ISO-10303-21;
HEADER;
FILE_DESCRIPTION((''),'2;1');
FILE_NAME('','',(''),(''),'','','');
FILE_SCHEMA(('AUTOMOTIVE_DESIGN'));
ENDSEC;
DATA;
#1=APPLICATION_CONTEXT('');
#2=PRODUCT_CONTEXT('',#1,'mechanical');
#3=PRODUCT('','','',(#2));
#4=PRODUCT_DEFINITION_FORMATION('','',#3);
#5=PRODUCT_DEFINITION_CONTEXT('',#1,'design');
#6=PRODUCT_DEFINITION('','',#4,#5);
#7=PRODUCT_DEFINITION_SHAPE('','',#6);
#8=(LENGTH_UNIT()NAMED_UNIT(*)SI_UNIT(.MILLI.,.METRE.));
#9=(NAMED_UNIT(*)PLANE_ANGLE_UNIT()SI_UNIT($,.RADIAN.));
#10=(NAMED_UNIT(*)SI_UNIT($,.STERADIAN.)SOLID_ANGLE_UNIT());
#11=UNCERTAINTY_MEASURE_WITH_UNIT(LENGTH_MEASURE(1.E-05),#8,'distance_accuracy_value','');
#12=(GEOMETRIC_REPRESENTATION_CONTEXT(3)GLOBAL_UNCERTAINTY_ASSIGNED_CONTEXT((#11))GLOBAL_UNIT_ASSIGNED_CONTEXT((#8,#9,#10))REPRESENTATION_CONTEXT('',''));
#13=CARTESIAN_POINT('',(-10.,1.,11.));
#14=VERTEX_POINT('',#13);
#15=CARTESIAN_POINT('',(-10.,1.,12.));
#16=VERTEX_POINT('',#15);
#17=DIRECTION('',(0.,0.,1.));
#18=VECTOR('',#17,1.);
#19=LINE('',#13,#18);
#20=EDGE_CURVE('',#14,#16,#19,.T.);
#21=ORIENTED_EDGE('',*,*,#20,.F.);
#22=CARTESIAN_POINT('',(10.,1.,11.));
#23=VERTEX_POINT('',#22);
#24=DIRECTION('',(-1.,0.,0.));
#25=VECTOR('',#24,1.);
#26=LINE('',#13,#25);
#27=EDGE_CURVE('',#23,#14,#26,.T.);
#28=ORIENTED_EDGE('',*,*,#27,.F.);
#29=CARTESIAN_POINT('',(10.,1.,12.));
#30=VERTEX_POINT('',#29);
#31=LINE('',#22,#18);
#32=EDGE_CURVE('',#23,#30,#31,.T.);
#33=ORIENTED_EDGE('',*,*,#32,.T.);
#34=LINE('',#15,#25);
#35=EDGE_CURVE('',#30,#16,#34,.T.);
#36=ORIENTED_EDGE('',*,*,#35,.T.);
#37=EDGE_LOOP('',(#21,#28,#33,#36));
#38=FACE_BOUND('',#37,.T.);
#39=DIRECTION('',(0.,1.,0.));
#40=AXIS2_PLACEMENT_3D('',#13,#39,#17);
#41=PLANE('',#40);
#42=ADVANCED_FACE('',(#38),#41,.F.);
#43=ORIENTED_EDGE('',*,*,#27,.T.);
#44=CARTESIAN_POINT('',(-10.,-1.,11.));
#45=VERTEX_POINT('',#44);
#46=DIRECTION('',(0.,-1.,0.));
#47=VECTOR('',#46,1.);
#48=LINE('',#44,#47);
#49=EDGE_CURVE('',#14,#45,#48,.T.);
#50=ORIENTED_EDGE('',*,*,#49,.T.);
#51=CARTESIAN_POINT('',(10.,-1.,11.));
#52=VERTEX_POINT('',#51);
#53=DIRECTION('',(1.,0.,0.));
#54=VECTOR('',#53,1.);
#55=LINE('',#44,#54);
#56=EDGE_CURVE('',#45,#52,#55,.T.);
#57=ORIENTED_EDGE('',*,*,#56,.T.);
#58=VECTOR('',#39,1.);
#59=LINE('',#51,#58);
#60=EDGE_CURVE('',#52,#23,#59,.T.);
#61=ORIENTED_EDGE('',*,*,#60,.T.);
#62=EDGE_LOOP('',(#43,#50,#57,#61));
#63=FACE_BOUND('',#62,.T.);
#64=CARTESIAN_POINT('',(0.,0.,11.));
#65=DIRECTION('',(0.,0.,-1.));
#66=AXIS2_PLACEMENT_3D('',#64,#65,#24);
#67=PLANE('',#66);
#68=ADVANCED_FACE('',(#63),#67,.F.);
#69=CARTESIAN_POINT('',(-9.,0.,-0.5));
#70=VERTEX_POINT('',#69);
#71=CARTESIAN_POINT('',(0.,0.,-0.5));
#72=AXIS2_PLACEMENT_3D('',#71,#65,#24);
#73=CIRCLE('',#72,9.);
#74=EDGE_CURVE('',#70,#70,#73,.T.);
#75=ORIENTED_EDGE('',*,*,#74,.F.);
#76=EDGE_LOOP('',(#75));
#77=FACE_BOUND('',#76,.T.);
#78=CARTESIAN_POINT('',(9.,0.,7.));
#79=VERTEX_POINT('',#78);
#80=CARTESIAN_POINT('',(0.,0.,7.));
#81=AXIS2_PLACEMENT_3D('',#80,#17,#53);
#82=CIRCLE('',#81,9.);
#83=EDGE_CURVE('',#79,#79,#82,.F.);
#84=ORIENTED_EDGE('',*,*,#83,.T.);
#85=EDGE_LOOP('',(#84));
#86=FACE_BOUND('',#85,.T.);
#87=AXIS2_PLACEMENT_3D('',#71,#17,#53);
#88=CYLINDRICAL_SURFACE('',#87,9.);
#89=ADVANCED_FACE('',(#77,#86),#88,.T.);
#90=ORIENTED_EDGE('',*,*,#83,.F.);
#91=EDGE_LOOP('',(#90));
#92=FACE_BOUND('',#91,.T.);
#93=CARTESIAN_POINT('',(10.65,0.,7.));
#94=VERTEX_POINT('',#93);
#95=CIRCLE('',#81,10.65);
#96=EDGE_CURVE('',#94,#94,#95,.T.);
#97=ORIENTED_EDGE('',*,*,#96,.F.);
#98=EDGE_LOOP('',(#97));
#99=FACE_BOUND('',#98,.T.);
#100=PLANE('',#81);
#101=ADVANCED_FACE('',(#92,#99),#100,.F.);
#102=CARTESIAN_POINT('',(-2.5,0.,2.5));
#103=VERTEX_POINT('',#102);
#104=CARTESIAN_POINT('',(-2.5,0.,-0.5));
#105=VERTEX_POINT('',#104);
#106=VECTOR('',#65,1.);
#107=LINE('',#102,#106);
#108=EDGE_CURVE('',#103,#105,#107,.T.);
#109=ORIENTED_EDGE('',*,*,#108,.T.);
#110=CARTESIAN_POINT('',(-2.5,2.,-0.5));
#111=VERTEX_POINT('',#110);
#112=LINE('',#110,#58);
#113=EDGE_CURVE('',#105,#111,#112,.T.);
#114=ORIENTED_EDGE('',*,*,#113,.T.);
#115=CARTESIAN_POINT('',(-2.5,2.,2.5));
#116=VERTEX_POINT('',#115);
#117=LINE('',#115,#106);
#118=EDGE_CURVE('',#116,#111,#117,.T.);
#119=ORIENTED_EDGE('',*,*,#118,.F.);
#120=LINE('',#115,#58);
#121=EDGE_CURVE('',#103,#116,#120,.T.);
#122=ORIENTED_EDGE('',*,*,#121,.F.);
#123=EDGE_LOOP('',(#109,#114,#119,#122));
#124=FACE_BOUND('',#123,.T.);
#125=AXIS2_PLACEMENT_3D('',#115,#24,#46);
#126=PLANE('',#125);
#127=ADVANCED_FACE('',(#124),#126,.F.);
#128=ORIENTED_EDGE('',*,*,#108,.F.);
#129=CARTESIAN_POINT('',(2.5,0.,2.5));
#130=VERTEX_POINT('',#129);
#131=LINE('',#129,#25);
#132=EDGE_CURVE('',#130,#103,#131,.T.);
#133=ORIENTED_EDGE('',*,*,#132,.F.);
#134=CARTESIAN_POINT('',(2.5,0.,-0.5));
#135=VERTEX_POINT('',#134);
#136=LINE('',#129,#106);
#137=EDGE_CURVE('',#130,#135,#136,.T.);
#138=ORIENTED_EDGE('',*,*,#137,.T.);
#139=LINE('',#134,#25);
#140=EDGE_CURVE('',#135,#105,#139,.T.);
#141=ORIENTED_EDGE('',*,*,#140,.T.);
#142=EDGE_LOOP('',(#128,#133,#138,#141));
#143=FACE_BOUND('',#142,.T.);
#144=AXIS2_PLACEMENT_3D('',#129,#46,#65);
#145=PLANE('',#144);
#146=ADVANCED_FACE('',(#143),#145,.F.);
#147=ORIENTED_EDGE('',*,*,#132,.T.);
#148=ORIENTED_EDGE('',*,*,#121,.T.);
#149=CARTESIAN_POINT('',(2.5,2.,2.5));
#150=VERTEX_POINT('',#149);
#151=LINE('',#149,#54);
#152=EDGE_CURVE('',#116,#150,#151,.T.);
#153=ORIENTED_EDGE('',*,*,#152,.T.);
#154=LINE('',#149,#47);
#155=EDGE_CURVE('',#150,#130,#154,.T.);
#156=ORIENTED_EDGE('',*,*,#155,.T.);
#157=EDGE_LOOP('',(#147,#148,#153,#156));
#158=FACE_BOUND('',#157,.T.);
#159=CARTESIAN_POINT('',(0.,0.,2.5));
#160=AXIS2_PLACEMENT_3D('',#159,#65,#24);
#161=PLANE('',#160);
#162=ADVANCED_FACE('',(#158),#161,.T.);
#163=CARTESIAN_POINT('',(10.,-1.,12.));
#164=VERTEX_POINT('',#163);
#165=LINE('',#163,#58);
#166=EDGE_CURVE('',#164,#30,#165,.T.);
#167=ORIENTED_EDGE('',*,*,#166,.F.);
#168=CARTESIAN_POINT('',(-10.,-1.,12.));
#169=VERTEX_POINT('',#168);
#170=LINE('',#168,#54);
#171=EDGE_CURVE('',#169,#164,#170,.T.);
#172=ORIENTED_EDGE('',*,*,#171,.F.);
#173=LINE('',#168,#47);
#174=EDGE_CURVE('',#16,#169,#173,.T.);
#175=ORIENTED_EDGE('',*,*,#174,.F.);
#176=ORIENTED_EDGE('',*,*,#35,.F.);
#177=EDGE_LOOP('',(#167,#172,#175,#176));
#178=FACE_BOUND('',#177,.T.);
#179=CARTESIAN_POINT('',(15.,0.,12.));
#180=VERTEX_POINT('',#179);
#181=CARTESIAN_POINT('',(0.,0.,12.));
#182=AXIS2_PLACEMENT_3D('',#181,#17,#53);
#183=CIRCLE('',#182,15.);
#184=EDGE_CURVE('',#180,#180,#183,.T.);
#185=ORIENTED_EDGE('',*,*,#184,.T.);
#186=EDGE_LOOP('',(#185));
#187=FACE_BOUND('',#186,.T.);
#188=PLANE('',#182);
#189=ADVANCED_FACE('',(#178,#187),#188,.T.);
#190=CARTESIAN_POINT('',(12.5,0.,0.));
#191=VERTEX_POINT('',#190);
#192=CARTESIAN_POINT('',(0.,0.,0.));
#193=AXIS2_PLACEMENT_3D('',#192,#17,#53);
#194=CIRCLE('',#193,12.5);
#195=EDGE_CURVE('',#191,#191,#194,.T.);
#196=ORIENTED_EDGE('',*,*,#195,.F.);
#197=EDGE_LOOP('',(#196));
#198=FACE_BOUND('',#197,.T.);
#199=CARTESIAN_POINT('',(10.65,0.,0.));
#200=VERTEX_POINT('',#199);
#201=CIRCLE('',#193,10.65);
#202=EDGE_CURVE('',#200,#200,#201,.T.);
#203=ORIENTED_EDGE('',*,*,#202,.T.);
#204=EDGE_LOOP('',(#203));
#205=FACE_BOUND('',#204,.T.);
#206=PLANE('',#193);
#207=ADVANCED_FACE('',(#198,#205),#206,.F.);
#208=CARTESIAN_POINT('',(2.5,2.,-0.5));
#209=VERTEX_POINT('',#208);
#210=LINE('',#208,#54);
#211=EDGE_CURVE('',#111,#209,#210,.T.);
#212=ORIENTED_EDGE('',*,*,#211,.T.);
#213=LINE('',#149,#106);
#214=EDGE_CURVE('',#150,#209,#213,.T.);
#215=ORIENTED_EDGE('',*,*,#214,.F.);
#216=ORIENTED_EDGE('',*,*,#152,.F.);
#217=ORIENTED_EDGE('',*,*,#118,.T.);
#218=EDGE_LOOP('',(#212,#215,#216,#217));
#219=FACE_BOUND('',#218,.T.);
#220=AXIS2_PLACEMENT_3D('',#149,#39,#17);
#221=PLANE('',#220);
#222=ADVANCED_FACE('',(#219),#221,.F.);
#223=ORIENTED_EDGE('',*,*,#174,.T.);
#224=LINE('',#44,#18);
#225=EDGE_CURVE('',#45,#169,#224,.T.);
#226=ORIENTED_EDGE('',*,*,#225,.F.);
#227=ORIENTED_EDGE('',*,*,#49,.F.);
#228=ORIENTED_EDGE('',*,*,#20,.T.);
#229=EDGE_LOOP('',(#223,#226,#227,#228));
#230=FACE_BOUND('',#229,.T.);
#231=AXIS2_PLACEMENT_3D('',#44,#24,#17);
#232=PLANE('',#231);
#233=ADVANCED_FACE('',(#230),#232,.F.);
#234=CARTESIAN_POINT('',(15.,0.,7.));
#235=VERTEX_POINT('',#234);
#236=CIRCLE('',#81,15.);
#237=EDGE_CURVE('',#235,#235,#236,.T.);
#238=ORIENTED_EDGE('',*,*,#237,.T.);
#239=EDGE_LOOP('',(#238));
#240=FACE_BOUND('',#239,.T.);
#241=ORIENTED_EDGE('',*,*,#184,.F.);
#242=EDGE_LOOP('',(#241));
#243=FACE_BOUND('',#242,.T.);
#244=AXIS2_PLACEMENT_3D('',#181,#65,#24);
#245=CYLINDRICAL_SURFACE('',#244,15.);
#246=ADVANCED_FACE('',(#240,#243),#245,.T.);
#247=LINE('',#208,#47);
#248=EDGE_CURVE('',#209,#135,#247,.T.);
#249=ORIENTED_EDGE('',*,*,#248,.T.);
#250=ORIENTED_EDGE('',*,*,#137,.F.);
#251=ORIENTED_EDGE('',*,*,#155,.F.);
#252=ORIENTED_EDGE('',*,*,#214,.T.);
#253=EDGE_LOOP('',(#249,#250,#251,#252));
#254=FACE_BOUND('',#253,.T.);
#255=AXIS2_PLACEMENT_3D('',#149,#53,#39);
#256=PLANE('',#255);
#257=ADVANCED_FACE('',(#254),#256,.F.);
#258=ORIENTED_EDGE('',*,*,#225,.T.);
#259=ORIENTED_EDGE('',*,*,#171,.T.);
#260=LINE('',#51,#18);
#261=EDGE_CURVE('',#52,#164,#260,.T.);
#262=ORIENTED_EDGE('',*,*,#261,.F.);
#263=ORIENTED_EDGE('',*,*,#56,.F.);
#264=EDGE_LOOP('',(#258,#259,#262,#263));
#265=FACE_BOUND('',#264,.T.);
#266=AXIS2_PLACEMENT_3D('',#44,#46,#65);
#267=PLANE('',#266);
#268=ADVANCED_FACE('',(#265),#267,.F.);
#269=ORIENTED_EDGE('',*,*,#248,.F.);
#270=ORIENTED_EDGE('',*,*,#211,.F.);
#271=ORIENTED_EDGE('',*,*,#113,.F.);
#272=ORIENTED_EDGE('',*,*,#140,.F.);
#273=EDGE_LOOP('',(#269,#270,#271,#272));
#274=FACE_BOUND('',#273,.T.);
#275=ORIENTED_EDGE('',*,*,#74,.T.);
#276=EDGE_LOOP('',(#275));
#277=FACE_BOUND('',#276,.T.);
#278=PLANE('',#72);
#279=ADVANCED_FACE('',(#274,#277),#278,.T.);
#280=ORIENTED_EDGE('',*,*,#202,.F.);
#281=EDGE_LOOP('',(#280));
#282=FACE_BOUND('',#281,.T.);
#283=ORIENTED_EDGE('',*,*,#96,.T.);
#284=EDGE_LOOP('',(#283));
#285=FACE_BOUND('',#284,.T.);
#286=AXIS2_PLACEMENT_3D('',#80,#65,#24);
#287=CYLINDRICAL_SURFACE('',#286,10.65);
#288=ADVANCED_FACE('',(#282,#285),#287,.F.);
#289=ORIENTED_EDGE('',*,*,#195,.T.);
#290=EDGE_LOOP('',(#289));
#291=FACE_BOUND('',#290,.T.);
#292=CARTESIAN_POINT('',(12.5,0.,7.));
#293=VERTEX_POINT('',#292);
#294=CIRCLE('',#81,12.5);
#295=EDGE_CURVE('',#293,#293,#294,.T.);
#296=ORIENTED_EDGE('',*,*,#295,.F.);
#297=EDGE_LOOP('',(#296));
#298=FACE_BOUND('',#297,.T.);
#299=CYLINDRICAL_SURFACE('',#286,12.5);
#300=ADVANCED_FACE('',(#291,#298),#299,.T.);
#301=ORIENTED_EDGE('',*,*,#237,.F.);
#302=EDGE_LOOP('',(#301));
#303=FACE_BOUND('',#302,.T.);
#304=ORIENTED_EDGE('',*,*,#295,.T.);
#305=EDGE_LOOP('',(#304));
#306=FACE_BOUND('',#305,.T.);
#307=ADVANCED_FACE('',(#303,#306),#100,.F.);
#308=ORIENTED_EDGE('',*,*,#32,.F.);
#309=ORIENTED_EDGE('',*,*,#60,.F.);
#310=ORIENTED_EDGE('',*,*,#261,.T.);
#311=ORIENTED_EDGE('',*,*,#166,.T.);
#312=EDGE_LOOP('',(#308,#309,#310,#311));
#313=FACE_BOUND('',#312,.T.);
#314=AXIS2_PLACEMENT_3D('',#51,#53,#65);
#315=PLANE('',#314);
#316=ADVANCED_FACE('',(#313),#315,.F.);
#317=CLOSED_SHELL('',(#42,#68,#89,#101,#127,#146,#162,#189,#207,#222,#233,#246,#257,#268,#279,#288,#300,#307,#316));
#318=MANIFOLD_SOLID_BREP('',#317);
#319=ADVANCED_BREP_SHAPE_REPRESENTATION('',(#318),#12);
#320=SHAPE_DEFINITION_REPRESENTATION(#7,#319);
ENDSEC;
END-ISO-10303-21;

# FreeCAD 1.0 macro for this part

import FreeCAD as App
import Part
import Sketcher
Q = App.Units.Quantity

doc = App.newDocument("Part")
body = doc.addObject("PartDesign::Body", "Body")

# Sketch on XY plane
sketch1 = doc.addObject("Sketcher::SketchObject", "Sketch")
body.addObject(sketch1)
sketch1.AttachmentSupport = (doc.XY_Plane, [""])
sketch1.MapMode = "FlatFace"
sketch1.addGeometry([
    Part.Circle(App.Vector(0, 0, 0), App.Vector(0, 0, 1), 12),
    Part.Circle(App.Vector(0, 0, 0), App.Vector(0, 0, 1), 11),
], False)
sketch1.addConstraint([
    Sketcher.Constraint("Coincident", 0, 3, -1, 1),
    Sketcher.Constraint("Coincident", 1, 3, -1, 1),
    Sketcher.Constraint("Diameter", 0, Q("25 mm")),
    Sketcher.Constraint("Diameter", 1, Q("21.3 mm")),
])
pad1 = doc.addObject("PartDesign::Pad", "Pad")
body.addObject(pad1)
pad1.Profile = sketch1
pad1.Length = 7

# Sketch on XY plane
sketch2 = doc.addObject("Sketcher::SketchObject", "Sketch001")
body.addObject(sketch2)
sketch2.AttachmentSupport = (doc.XY_Plane, [""])
sketch2.MapMode = "FlatFace"
sketch2.AttachmentOffset = App.Placement(App.Vector(0, 0, 7), App.Rotation())
sketch2.addGeometry(Part.Circle(App.Vector(0, 0, 0), App.Vector(0, 0, 1), 15), False)
sketch2.addConstraint([
    Sketcher.Constraint("Coincident", 0, 3, -1, 1),
    Sketcher.Constraint("Diameter", 0, Q("30 mm")),
])
pad2 = doc.addObject("PartDesign::Pad", "Pad001")
body.addObject(pad2)
pad2.Profile = sketch2
pad2.Length = 5

# Sketch on XY plane
sketch3 = doc.addObject("Sketcher::SketchObject", "Sketch002")
body.addObject(sketch3)
sketch3.AttachmentSupport = (doc.XY_Plane, [""])
sketch3.MapMode = "FlatFace"
sketch3.AttachmentOffset = App.Placement(App.Vector(0, 0, 7), App.Rotation())
sketch3.addGeometry(Part.Circle(App.Vector(0, 0, 0), App.Vector(0, 0, 1), 9), False)
sketch3.addConstraint([
    Sketcher.Constraint("Coincident", 0, 3, -1, 1),
    Sketcher.Constraint("Diameter", 0, Q("18 mm")),
])
pad3 = doc.addObject("PartDesign::Pad", "Pad002")
body.addObject(pad3)
pad3.Profile = sketch3
pad3.Length = 7.5
pad3.Reversed = True

# Sketch on XY plane
sketch4 = doc.addObject("Sketcher::SketchObject", "Sketch003")
body.addObject(sketch4)
sketch4.AttachmentSupport = (doc.XY_Plane, [""])
sketch4.MapMode = "FlatFace"
sketch4.AttachmentOffset = App.Placement(App.Vector(0, 0, 12), App.Rotation())
sketch4.addGeometry([
    Part.LineSegment(App.Vector(-10, 1, 0), App.Vector(-10, -1, 0)),
    Part.LineSegment(App.Vector(-10, -1, 0), App.Vector(10, -1, 0)),
    Part.LineSegment(App.Vector(10, -1, 0), App.Vector(10, 1, 0)),
    Part.LineSegment(App.Vector(10, 1, 0), App.Vector(-10, 1, 0)),
], False)
sketch4.addConstraint([
    Sketcher.Constraint("Coincident", 0, 2, 1, 1),
    Sketcher.Constraint("Coincident", 1, 2, 2, 1),
    Sketcher.Constraint("Coincident", 2, 2, 3, 1),
    Sketcher.Constraint("Coincident", 3, 2, 0, 1),
    Sketcher.Constraint("Vertical", 0),
    Sketcher.Constraint("Horizontal", 1),
    Sketcher.Constraint("Vertical", 2),
    Sketcher.Constraint("Horizontal", 3),
    Sketcher.Constraint("Symmetric", 0, 2, 2, 2, -1, 1),
    Sketcher.Constraint("DistanceX", 1, 1, 1, 2, Q("20 mm")),
    Sketcher.Constraint("DistanceY", 0, 2, 0, 1, Q("2 mm")),
])
pocket1 = doc.addObject("PartDesign::Pocket", "Pocket")
body.addObject(pocket1)
pocket1.Profile = sketch4
pocket1.Length = 1

# Sketch on XY plane
sketch5 = doc.addObject("Sketcher::SketchObject", "Sketch004")
body.addObject(sketch5)
sketch5.AttachmentSupport = (doc.XY_Plane, [""])
sketch5.MapMode = "FlatFace"
sketch5.AttachmentOffset = App.Placement(App.Vector(0, 0, -0.5), App.Rotation())
sketch5.addGeometry([
    Part.LineSegment(App.Vector(2.5, 2, 0), App.Vector(2.5, 0, 0)),
    Part.LineSegment(App.Vector(2.5, 0, 0), App.Vector(-2.5, 0, 0)),
    Part.LineSegment(App.Vector(-2.5, 0, 0), App.Vector(-2.5, 2, 0)),
    Part.LineSegment(App.Vector(-2.5, 2, 0), App.Vector(2.5, 2, 0)),
], False)
sketch5.addConstraint([
    Sketcher.Constraint("Coincident", 0, 2, 1, 1),
    Sketcher.Constraint("Coincident", 1, 2, 2, 1),
    Sketcher.Constraint("Coincident", 2, 2, 3, 1),
    Sketcher.Constraint("Coincident", 3, 2, 0, 1),
    Sketcher.Constraint("Vertical", 0),
    Sketcher.Constraint("Horizontal", 1),
    Sketcher.Constraint("Vertical", 2),
    Sketcher.Constraint("Horizontal", 3),
    Sketcher.Constraint("Symmetric", 0, 2, 1, 2, -1, 1),
    Sketcher.Constraint("DistanceX", 1, 2, 1, 1, Q("5 mm")),
    Sketcher.Constraint("DistanceY", 0, 2, 0, 1, Q("2 mm")),
])
pocket2 = doc.addObject("PartDesign::Pocket", "Pocket001")
body.addObject(pocket2)
pocket2.Profile = sketch5
pocket2.Length = 3
pocket2.Reversed = True

doc.recompute()
